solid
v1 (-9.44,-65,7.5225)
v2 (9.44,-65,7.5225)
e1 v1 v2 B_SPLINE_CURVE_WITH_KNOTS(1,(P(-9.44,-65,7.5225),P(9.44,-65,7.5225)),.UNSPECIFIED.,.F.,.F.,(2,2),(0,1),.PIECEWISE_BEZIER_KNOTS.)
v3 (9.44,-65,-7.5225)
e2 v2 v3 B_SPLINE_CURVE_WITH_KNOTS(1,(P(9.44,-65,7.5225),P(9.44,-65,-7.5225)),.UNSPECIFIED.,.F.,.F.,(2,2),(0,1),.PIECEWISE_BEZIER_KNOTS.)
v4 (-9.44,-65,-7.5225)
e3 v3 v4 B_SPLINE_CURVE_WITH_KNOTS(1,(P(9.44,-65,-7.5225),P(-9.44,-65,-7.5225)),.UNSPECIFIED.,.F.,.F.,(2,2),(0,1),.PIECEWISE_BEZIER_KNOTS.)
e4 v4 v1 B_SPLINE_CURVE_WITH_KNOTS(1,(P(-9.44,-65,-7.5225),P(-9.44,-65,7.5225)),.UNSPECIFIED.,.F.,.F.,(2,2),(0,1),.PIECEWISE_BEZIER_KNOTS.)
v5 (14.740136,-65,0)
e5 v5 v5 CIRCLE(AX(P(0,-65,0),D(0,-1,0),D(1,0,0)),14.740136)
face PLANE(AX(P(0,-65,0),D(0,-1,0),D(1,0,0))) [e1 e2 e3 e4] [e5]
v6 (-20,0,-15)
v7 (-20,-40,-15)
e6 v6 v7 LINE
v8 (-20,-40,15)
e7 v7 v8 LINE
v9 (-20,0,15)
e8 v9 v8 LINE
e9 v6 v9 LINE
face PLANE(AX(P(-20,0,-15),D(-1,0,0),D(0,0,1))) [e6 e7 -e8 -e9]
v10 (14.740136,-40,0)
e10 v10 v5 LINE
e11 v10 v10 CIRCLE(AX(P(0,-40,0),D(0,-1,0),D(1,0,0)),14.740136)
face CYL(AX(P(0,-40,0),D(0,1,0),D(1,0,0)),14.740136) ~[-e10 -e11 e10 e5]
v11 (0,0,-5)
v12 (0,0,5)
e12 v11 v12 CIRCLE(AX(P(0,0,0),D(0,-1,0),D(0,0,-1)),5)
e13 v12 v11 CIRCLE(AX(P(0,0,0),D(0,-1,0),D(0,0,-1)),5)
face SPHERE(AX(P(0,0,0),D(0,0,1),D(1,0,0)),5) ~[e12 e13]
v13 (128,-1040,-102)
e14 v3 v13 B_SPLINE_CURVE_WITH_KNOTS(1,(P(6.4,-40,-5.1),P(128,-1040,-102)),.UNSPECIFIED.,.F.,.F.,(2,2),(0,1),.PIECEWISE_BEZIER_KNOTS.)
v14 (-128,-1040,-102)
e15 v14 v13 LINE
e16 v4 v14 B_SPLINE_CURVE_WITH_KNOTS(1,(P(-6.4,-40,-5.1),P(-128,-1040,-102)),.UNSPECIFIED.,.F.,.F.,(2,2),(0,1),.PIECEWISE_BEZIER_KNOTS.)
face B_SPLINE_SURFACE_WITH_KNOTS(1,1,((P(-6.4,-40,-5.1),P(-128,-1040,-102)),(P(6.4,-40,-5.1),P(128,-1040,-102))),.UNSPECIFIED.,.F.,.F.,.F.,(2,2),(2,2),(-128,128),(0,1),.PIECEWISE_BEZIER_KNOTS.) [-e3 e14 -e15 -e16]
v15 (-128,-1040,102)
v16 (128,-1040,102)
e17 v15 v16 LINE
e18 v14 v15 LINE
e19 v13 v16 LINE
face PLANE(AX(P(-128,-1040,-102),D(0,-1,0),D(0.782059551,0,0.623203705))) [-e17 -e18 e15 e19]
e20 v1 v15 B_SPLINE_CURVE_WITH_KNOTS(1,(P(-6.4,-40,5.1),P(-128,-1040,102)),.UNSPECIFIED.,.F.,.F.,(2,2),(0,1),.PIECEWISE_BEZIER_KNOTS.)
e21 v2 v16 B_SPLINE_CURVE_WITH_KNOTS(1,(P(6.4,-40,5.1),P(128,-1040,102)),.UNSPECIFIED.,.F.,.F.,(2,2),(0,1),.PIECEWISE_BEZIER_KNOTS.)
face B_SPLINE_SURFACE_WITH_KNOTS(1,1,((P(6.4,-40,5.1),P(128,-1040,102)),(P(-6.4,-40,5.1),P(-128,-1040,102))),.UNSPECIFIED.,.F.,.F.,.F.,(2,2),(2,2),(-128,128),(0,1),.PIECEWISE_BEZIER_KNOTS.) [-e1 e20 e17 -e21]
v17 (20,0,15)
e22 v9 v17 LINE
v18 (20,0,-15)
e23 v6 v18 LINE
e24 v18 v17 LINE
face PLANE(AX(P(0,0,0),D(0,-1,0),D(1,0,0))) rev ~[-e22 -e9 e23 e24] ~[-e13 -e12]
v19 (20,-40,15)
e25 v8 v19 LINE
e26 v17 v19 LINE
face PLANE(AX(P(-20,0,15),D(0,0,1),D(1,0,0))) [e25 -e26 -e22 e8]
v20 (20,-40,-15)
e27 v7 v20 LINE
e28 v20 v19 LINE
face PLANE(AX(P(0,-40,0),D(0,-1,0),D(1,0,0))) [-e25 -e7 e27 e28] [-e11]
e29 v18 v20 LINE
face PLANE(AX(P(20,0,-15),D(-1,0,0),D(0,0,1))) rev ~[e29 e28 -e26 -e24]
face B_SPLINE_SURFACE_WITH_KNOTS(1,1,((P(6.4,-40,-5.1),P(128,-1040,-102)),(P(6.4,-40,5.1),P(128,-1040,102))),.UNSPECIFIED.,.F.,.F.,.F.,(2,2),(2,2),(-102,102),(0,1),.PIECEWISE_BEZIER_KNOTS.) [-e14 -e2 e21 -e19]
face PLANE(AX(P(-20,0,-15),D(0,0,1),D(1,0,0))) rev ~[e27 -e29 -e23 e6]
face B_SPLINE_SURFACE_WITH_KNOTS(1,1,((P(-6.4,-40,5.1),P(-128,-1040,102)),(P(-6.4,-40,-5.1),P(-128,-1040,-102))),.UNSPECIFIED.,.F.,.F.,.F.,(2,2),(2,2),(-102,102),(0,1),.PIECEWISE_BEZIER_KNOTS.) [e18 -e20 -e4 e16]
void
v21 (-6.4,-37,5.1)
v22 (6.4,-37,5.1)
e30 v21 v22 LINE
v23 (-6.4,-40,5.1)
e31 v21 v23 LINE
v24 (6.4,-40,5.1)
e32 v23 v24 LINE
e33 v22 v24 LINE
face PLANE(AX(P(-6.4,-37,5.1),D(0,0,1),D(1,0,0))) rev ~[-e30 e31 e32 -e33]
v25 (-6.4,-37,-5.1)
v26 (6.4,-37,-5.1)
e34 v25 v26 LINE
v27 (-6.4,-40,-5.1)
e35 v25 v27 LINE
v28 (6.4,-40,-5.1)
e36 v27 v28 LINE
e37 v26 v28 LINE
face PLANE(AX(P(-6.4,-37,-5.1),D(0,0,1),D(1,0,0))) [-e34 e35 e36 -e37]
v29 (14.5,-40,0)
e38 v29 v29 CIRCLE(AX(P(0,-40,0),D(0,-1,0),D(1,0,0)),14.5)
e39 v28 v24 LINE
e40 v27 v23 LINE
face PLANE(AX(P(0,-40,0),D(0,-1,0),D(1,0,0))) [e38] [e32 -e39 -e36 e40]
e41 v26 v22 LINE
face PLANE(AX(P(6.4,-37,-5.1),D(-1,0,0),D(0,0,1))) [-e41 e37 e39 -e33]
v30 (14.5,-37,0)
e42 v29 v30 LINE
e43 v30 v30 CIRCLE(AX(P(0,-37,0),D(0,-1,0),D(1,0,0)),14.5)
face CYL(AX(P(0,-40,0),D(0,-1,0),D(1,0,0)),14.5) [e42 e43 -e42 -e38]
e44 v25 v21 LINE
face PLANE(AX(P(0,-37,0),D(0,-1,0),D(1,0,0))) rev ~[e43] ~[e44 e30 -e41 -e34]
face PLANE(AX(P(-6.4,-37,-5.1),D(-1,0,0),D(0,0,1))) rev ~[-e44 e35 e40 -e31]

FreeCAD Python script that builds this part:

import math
import FreeCAD as App
import Part
import Sketcher
from FreeCAD import Vector
Q = App.Units.Quantity

doc = App.newDocument("Part")
body = doc.addObject("PartDesign::Body", "Body")

# Sketch on XZ plane
sketch1 = body.newObject("Sketcher::SketchObject", "Sketch")
sketch1.AttachmentSupport = (doc.getObject("XZ_Plane"), [""])
sketch1.MapMode = "FlatFace"
sketch1.addGeometry([
    Part.LineSegment(Vector(-20, 15, 0), Vector(-20, -15, 0)),
    Part.LineSegment(Vector(-20, -15, 0), Vector(20, -15, 0)),
    Part.LineSegment(Vector(20, -15, 0), Vector(20, 15, 0)),
    Part.LineSegment(Vector(20, 15, 0), Vector(-20, 15, 0)),
], False)
sketch1.addConstraint([
    Sketcher.Constraint("Coincident", 0, 2, 1, 1),
    Sketcher.Constraint("Coincident", 1, 2, 2, 1),
    Sketcher.Constraint("Coincident", 2, 2, 3, 1),
    Sketcher.Constraint("Coincident", 3, 2, 0, 1),
    Sketcher.Constraint("Vertical", 0),
    Sketcher.Constraint("Horizontal", 1),
    Sketcher.Constraint("Vertical", 2),
    Sketcher.Constraint("Horizontal", 3),
    Sketcher.Constraint("Symmetric", 0, 2, 2, 2, -1, 1),
    Sketcher.Constraint("DistanceX", 1, 1, 1, 2, Q("40 mm")),
    Sketcher.Constraint("DistanceY", 0, 2, 0, 1, Q("30 mm")),
])
pad1 = body.newObject("PartDesign::Pad", "Pad")
pad1.Profile = sketch1
pad1.Length = 40

# Sketch on XZ plane
sketch2 = body.newObject("Sketcher::SketchObject", "Sketch001")
sketch2.AttachmentSupport = (doc.getObject("XZ_Plane"), [""])
sketch2.MapMode = "FlatFace"
sketch2.AttachmentOffset = App.Placement(Vector(0, 0, 40), App.Rotation())
sketch2.addGeometry(Part.Circle(Vector(0, 0, 0), Vector(0, 0, 1), 14.5), False)
sketch2.addConstraint([
    Sketcher.Constraint("Coincident", 0, 3, -1, 1),
    Sketcher.Constraint("Diameter", 0, Q("29 mm")),
])
pocket1 = body.newObject("PartDesign::Pocket", "Pocket")
pocket1.Profile = sketch2
pocket1.Length = 3

# Sketch on XZ plane
sketch3 = body.newObject("Sketcher::SketchObject", "Sketch002")
sketch3.AttachmentSupport = (doc.getObject("XZ_Plane"), [""])
sketch3.MapMode = "FlatFace"
sketch3.AttachmentOffset = App.Placement(Vector(0, 0, 37), App.Rotation())
sketch3.addGeometry([
    Part.LineSegment(Vector(-6.4, 5.1, 0), Vector(-6.4, -5.1, 0)),
    Part.LineSegment(Vector(-6.4, -5.1, 0), Vector(6.4, -5.1, 0)),
    Part.LineSegment(Vector(6.4, -5.1, 0), Vector(6.4, 5.1, 0)),
    Part.LineSegment(Vector(6.4, 5.1, 0), Vector(-6.4, 5.1, 0)),
], False)
sketch3.addConstraint([
    Sketcher.Constraint("Coincident", 0, 2, 1, 1),
    Sketcher.Constraint("Coincident", 1, 2, 2, 1),
    Sketcher.Constraint("Coincident", 2, 2, 3, 1),
    Sketcher.Constraint("Coincident", 3, 2, 0, 1),
    Sketcher.Constraint("Vertical", 0),
    Sketcher.Constraint("Horizontal", 1),
    Sketcher.Constraint("Vertical", 2),
    Sketcher.Constraint("Horizontal", 3),
    Sketcher.Constraint("Symmetric", 0, 2, 2, 2, -1, 1),
    Sketcher.Constraint("DistanceX", 1, 1, 1, 2, Q("12.8 mm")),
    Sketcher.Constraint("DistanceY", 0, 2, 0, 1, Q("10.2 mm")),
])
pad2 = body.newObject("PartDesign::Pad", "Pad001")
pad2.Profile = sketch3
pad2.Length = 3

# Sketch on XZ plane
sketch4 = body.newObject("Sketcher::SketchObject", "Sketch003")
sketch4.AttachmentSupport = (doc.getObject("XZ_Plane"), [""])
sketch4.MapMode = "FlatFace"
sketch4.AttachmentOffset = App.Placement(Vector(0, 0, 40), App.Rotation())
sketch4.addGeometry([
    Part.LineSegment(Vector(-6.4, 5.1, 0), Vector(-6.4, -5.1, 0)),
    Part.LineSegment(Vector(-6.4, -5.1, 0), Vector(6.4, -5.1, 0)),
    Part.LineSegment(Vector(6.4, -5.1, 0), Vector(6.4, 5.1, 0)),
    Part.LineSegment(Vector(6.4, 5.1, 0), Vector(-6.4, 5.1, 0)),
], False)
sketch4.addConstraint([
    Sketcher.Constraint("Coincident", 0, 2, 1, 1),
    Sketcher.Constraint("Coincident", 1, 2, 2, 1),
    Sketcher.Constraint("Coincident", 2, 2, 3, 1),
    Sketcher.Constraint("Coincident", 3, 2, 0, 1),
    Sketcher.Constraint("Vertical", 0),
    Sketcher.Constraint("Horizontal", 1),
    Sketcher.Constraint("Vertical", 2),
    Sketcher.Constraint("Horizontal", 3),
    Sketcher.Constraint("Symmetric", 0, 2, 2, 2, -1, 1),
    Sketcher.Constraint("DistanceX", 1, 1, 1, 2, Q("12.8 mm")),
    Sketcher.Constraint("DistanceY", 0, 2, 0, 1, Q("10.2 mm")),
])

# Sketch on XZ plane
sketch5 = body.newObject("Sketcher::SketchObject", "Sketch004")
sketch5.AttachmentSupport = (doc.getObject("XZ_Plane"), [""])
sketch5.MapMode = "FlatFace"
sketch5.AttachmentOffset = App.Placement(Vector(0, 0, 1040), App.Rotation())
sketch5.addGeometry([
    Part.LineSegment(Vector(-128, 102, 0), Vector(-128, -102, 0)),
    Part.LineSegment(Vector(-128, -102, 0), Vector(128, -102, 0)),
    Part.LineSegment(Vector(128, -102, 0), Vector(128, 102, 0)),
    Part.LineSegment(Vector(128, 102, 0), Vector(-128, 102, 0)),
], False)
sketch5.addConstraint([
    Sketcher.Constraint("Coincident", 0, 2, 1, 1),
    Sketcher.Constraint("Coincident", 1, 2, 2, 1),
    Sketcher.Constraint("Coincident", 2, 2, 3, 1),
    Sketcher.Constraint("Coincident", 3, 2, 0, 1),
    Sketcher.Constraint("Vertical", 0),
    Sketcher.Constraint("Horizontal", 1),
    Sketcher.Constraint("Vertical", 2),
    Sketcher.Constraint("Horizontal", 3),
    Sketcher.Constraint("Symmetric", 0, 2, 2, 2, -1, 1),
    Sketcher.Constraint("DistanceX", 1, 1, 1, 2, Q("256 mm")),
    Sketcher.Constraint("DistanceY", 0, 2, 0, 1, Q("204 mm")),
])

additiveloft = body.newObject("PartDesign::AdditiveLoft", "AdditiveLoft")
additiveloft.Profile = sketch4
additiveloft.Sections = [sketch5]

# Sketch on XZ plane
sketch6 = body.newObject("Sketcher::SketchObject", "Sketch005")
sketch6.AttachmentSupport = (doc.getObject("XZ_Plane"), [""])
sketch6.MapMode = "FlatFace"
sketch6.addGeometry([
    Part.ArcOfCircle(Part.Circle(Vector(0, 0, 0), Vector(0, 0, 1), 5), math.radians(-90), math.radians(90)),
    Part.LineSegment(Vector(0, 5, 0), Vector(0, -5, 0)),
], False)
sketch6.addConstraint([
    Sketcher.Constraint("Coincident", 0, 1, 1, 2),
    Sketcher.Constraint("Coincident", 1, 1, 0, 2),
    Sketcher.Constraint("Vertical", 1),
    Sketcher.Constraint("Coincident", 0, 3, -1, 1),
    Sketcher.Constraint("PointOnObject", 0, 1, -2),
    Sketcher.Constraint("Radius", 0, Q("5 mm")),
])
revolution = body.newObject("PartDesign::Revolution", "Revolution")
revolution.Profile = sketch6
revolution.ReferenceAxis = (sketch6, ["V_Axis"])
revolution.Angle = 360

# Sketch on XZ plane
sketch7 = body.newObject("Sketcher::SketchObject", "Sketch006")
sketch7.AttachmentSupport = (doc.getObject("XZ_Plane"), [""])
sketch7.MapMode = "FlatFace"
sketch7.AttachmentOffset = App.Placement(Vector(0, 0, 40), App.Rotation())
sketch7.addGeometry(Part.Circle(Vector(0, 0, 0), Vector(0, 0, 1), 14.740136), False)
sketch7.addConstraint([
    Sketcher.Constraint("Coincident", 0, 3, -1, 1),
    Sketcher.Constraint("Diameter", 0, Q("29.480272 mm")),
])
pad3 = body.newObject("PartDesign::Pad", "Pad002")
pad3.Profile = sketch7
pad3.Length = 25

doc.recompute()
